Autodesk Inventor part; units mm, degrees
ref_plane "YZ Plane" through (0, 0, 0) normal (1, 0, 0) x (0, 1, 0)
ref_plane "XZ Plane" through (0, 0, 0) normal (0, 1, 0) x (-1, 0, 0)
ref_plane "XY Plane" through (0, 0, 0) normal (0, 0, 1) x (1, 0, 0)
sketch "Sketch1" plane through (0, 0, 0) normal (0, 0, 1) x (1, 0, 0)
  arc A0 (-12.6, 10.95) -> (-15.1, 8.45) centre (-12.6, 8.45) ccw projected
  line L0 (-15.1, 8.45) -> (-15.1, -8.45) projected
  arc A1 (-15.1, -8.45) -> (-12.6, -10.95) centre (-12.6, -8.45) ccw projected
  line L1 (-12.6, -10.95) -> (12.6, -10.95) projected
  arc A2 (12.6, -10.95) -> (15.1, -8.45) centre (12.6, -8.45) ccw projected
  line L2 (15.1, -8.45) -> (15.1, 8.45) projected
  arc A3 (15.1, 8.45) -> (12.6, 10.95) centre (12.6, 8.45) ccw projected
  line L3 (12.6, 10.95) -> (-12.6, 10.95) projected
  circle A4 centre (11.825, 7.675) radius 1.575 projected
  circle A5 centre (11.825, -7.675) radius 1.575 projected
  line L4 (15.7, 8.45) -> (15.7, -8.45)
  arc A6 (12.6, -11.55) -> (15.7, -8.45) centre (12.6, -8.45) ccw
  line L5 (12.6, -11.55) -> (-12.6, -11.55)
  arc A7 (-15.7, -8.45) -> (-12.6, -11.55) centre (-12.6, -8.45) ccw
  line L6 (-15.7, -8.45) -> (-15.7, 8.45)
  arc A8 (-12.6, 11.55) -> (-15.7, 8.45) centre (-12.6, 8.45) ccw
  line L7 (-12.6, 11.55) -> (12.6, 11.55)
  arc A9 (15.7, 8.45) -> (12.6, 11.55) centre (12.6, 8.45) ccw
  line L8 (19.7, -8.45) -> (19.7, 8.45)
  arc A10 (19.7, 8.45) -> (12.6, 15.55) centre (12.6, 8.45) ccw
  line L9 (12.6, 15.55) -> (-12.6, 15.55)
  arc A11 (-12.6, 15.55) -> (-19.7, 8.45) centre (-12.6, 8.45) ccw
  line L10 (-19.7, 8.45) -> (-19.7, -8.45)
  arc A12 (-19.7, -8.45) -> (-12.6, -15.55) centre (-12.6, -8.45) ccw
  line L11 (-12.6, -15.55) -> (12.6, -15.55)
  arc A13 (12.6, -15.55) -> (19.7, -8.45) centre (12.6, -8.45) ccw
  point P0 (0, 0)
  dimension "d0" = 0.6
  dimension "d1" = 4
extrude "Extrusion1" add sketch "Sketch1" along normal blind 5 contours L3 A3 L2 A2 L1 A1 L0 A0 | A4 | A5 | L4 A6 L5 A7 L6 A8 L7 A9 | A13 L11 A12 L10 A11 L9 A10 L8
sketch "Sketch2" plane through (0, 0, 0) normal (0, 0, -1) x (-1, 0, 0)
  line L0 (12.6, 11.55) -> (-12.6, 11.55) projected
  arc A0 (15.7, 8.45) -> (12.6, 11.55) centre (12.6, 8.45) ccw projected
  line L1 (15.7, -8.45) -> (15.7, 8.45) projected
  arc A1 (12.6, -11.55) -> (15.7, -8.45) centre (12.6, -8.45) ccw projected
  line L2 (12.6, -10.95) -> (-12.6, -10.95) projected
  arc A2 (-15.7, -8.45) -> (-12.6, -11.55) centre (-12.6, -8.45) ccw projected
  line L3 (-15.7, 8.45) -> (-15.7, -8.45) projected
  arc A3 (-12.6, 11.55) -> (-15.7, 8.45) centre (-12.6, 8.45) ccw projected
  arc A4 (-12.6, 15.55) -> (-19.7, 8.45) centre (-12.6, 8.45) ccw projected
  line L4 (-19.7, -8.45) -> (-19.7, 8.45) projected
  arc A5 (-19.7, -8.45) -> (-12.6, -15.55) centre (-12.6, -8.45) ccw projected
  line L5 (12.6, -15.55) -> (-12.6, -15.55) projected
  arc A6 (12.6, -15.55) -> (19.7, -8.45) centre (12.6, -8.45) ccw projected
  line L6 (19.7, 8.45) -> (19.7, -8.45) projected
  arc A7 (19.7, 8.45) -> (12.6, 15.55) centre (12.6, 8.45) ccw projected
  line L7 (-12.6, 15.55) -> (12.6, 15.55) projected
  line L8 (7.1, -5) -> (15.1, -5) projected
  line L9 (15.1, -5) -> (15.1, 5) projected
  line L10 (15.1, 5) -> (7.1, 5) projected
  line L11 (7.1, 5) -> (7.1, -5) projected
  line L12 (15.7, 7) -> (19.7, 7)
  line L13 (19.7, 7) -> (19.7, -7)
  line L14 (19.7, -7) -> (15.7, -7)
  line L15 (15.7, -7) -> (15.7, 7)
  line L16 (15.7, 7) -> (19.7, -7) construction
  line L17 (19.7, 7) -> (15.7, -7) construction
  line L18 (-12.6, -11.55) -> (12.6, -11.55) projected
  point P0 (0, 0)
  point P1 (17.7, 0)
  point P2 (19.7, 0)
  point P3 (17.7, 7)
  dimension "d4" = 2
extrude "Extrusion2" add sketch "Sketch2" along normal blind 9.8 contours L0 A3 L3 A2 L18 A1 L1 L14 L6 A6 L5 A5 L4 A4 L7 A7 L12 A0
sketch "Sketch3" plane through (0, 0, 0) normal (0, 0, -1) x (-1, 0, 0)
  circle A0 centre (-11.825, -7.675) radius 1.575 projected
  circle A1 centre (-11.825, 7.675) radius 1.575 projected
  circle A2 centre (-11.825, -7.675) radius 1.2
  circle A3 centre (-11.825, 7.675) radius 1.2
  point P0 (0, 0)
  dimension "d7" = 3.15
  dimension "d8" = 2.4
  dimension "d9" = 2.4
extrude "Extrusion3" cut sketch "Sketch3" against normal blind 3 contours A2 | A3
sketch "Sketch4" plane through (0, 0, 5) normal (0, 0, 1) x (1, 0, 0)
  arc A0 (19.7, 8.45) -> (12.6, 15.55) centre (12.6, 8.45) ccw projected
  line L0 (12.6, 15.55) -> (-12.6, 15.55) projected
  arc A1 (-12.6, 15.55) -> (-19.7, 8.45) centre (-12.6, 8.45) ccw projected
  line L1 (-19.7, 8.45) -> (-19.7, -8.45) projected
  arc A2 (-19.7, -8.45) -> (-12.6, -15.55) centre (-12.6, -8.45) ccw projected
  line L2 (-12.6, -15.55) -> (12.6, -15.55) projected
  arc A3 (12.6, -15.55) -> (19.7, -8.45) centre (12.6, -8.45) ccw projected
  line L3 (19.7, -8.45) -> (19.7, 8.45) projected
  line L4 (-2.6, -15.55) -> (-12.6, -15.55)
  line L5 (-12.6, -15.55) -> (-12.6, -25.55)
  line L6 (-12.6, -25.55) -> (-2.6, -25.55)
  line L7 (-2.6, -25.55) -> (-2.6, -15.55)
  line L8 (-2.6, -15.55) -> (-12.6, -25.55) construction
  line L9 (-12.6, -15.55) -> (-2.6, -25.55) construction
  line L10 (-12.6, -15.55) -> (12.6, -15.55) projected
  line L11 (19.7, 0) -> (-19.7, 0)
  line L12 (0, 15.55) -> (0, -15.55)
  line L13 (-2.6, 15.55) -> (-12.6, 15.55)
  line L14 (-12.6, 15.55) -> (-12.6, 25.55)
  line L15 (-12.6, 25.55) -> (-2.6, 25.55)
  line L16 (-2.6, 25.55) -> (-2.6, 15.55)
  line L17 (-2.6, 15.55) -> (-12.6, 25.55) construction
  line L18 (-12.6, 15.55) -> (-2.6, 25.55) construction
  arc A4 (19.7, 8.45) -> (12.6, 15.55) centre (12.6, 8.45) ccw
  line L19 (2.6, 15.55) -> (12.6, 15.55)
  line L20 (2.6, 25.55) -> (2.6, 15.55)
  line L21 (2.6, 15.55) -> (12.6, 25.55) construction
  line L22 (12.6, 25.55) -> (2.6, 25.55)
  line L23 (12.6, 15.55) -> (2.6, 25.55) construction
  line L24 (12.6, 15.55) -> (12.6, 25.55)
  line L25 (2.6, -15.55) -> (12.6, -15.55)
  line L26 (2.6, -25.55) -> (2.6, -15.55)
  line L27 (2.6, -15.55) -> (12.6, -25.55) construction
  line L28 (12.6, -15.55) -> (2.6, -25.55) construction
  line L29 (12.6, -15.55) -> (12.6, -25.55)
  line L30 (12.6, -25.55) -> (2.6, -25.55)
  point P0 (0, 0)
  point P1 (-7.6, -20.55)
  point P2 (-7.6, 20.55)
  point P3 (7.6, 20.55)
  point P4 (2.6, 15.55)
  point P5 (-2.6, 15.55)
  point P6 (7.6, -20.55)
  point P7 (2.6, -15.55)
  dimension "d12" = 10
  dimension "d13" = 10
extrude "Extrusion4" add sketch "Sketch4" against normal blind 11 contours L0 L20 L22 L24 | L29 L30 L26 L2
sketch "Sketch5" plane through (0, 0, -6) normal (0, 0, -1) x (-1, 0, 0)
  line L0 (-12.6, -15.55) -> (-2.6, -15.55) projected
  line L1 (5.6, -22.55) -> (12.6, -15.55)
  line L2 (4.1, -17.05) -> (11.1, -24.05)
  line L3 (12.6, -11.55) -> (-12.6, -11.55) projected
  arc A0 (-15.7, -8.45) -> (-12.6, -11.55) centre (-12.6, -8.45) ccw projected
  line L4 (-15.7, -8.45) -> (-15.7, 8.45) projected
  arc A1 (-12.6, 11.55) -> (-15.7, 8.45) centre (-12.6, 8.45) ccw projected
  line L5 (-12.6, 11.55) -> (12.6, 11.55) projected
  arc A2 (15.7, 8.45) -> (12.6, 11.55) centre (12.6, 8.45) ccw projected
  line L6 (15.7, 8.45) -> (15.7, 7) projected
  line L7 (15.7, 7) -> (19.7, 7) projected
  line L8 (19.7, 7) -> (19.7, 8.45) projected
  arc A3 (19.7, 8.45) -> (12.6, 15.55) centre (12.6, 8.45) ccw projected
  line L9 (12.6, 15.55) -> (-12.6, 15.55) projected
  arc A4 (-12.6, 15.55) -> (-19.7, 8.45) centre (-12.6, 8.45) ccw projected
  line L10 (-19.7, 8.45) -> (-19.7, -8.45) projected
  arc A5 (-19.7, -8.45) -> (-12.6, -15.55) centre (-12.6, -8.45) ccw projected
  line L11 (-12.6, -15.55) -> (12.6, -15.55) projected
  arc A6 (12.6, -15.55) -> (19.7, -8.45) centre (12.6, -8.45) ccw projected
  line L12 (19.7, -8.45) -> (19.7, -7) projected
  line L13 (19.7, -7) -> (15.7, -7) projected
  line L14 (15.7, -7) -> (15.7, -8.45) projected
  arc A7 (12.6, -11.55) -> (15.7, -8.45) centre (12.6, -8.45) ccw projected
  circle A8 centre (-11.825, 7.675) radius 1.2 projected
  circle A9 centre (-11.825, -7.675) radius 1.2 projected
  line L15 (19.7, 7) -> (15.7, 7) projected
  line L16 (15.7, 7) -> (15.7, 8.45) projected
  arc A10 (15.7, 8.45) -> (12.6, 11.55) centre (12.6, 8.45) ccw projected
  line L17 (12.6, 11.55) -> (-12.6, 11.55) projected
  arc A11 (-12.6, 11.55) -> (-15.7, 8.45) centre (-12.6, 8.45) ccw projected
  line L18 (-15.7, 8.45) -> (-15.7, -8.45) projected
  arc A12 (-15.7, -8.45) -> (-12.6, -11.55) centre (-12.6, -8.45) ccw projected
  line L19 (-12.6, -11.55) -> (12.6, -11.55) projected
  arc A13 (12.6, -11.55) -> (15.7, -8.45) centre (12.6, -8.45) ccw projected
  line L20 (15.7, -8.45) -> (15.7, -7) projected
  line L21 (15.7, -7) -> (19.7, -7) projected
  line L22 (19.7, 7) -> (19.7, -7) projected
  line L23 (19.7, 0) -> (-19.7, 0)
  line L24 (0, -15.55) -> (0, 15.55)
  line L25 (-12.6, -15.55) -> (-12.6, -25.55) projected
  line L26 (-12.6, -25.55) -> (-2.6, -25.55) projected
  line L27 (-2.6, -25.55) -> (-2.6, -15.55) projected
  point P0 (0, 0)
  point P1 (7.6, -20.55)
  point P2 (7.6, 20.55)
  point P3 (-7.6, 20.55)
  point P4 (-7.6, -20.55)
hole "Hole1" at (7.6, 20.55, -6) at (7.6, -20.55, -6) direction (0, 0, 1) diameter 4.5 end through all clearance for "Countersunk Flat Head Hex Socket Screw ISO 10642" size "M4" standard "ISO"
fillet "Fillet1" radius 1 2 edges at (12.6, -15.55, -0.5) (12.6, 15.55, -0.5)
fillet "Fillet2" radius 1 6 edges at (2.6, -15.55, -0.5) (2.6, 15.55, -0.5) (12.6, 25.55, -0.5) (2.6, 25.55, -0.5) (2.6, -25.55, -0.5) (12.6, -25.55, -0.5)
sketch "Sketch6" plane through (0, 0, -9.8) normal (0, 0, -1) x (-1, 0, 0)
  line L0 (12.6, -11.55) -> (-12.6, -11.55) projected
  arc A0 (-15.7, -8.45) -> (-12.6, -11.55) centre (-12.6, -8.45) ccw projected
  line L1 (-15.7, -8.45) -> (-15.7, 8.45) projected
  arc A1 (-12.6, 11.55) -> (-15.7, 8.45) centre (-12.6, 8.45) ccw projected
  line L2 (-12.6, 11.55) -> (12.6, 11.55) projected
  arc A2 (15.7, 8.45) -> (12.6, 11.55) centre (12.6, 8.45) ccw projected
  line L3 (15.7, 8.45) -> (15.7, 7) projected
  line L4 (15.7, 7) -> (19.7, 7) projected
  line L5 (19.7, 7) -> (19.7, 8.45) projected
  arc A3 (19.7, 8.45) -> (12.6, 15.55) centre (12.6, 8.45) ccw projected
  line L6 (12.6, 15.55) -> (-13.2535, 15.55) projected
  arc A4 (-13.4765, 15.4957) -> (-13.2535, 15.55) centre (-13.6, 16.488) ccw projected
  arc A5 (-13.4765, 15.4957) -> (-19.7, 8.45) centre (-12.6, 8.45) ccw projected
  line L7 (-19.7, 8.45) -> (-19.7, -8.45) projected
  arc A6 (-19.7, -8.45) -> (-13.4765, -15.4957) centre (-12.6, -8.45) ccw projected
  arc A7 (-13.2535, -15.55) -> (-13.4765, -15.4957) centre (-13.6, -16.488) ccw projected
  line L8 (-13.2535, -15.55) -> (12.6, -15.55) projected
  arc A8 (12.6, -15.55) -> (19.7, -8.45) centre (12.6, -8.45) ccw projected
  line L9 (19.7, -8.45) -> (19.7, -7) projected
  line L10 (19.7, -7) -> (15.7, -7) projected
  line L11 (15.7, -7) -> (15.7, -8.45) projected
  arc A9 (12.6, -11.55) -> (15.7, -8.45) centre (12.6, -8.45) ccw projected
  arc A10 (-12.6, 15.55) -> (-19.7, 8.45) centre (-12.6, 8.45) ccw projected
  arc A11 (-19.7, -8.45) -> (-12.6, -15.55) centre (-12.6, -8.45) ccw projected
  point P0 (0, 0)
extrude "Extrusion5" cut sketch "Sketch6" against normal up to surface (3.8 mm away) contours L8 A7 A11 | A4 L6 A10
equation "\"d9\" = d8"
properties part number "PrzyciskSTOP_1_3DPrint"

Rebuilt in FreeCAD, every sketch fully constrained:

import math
import FreeCAD as App
import Part
import Sketcher
from FreeCAD import Vector
Q = App.Units.Quantity


def edges_at(feature, points):
    """Names of the edges that pass closest to the given points."""
    edges = feature.Shape.Edges
    near = lambda p: min(range(len(edges)), key=lambda i: edges[i].distToShape(Part.Vertex(*p))[0])
    return sorted({f"Edge{near(p) + 1}" for p in points})

doc = App.newDocument("Part")
body = doc.addObject("PartDesign::Body", "Body")

# Sketch on XY plane
sketch1 = body.newObject("Sketcher::SketchObject", "Sketch")
sketch1.AttachmentSupport = (doc.getObject("XY_Plane"), [""])
sketch1.MapMode = "FlatFace"
sketch1.addGeometry(Part.ArcOfCircle(Part.Circle(Vector(12.6, -8.45, 0), Vector(0, 0, 1), 7.1), math.radians(-90), math.radians(0)), False)
sketch1.addGeometry(Part.LineSegment(Vector(19.7, -8.45, 0), Vector(19.7, 8.45, 0)), False)
sketch1.addGeometry(Part.ArcOfCircle(Part.Circle(Vector(12.6, 8.45, 0), Vector(0, 0, 1), 7.1), math.radians(0), math.radians(90)), False)
sketch1.addGeometry(Part.LineSegment(Vector(12.6, 15.55, 0), Vector(-12.6, 15.55, 0)), False)
sketch1.addGeometry(Part.ArcOfCircle(Part.Circle(Vector(-12.6, 8.45, 0), Vector(0, 0, 1), 7.1), math.radians(90), math.radians(180)), False)
sketch1.addGeometry(Part.LineSegment(Vector(-19.7, 8.45, 0), Vector(-19.7, -8.45, 0)), False)
sketch1.addGeometry(Part.ArcOfCircle(Part.Circle(Vector(-12.6, -8.45, 0), Vector(0, 0, 1), 7.1), math.radians(180), math.radians(270)), False)
sketch1.addGeometry(Part.LineSegment(Vector(-12.6, -15.55, 0), Vector(12.6, -15.55, 0)), False)
sketch1.addConstraint(Sketcher.Constraint("Tangent", 0, 2, 1, 1))
sketch1.addConstraint(Sketcher.Constraint("Tangent", 1, 2, 2, 1))
sketch1.addConstraint(Sketcher.Constraint("Tangent", 2, 2, 3, 1))
sketch1.addConstraint(Sketcher.Constraint("Tangent", 3, 2, 4, 1))
sketch1.addConstraint(Sketcher.Constraint("Tangent", 4, 2, 5, 1))
sketch1.addConstraint(Sketcher.Constraint("Tangent", 5, 2, 6, 1))
sketch1.addConstraint(Sketcher.Constraint("Tangent", 6, 2, 7, 1))
sketch1.addConstraint(Sketcher.Constraint("Tangent", 7, 2, 0, 1))
sketch1.addConstraint(Sketcher.Constraint("Vertical", 1))
sketch1.addConstraint(Sketcher.Constraint("Horizontal", 3))
sketch1.addConstraint(Sketcher.Constraint("Vertical", 5))
sketch1.addConstraint(Sketcher.Constraint("Horizontal", 7))
sketch1.addConstraint(Sketcher.Constraint("Equal", 0, 2))
sketch1.addConstraint(Sketcher.Constraint("Equal", 2, 4))
sketch1.addConstraint(Sketcher.Constraint("Equal", 4, 6))
sketch1.addConstraint(Sketcher.Constraint("Symmetric", 0, 3, 4, 3, -1, 1))
sketch1.addConstraint(Sketcher.Constraint("Radius", 0, Q("7.1 mm")))
sketch1.addConstraint(Sketcher.Constraint("DistanceX", 3, 2, 3, 1, Q("25.2 mm")))
sketch1.addConstraint(Sketcher.Constraint("DistanceY", 1, 1, 1, 2, Q("16.9 mm")))
pad1 = body.newObject("PartDesign::Pad", "Pad")
pad1.Profile = sketch1
pad1.Length = 5

# Sketch on XY plane
sketch2 = body.newObject("Sketcher::SketchObject", "Sketch001")
sketch2.AttachmentSupport = (doc.getObject("XY_Plane"), [""])
sketch2.MapMode = "FlatFace"
sketch2.addGeometry(Part.LineSegment(Vector(12.6, 11.55, 0), Vector(-12.6, 11.55, 0)), False)
sketch2.addGeometry(Part.ArcOfCircle(Part.Circle(Vector(-12.6, 8.45, 0), Vector(0, 0, 1), 3.1), math.radians(90), math.radians(180)), False)
sketch2.addGeometry(Part.LineSegment(Vector(-15.7, 8.45, 0), Vector(-15.7, 7, 0)), False)
sketch2.addGeometry(Part.LineSegment(Vector(-15.7, 7, 0), Vector(-19.7, 7, 0)), False)
sketch2.addGeometry(Part.LineSegment(Vector(-19.7, 7, 0), Vector(-19.7, 8.45, 0)), False)
sketch2.addGeometry(Part.ArcOfCircle(Part.Circle(Vector(-12.6, 8.45, 0), Vector(0, 0, 1), 7.1), math.radians(90), math.radians(180)), False)
sketch2.addGeometry(Part.LineSegment(Vector(-12.6, 15.55, 0), Vector(12.6, 15.55, 0)), False)
sketch2.addGeometry(Part.ArcOfCircle(Part.Circle(Vector(12.6, 8.45, 0), Vector(0, 0, 1), 7.1), math.radians(0), math.radians(90)), False)
sketch2.addGeometry(Part.LineSegment(Vector(19.7, 8.45, 0), Vector(19.7, -8.45, 0)), False)
sketch2.addGeometry(Part.ArcOfCircle(Part.Circle(Vector(12.6, -8.45, 0), Vector(0, 0, 1), 7.1), math.radians(-90), math.radians(0)), False)
sketch2.addGeometry(Part.LineSegment(Vector(12.6, -15.55, 0), Vector(-12.6, -15.55, 0)), False)
sketch2.addGeometry(Part.ArcOfCircle(Part.Circle(Vector(-12.6, -8.45, 0), Vector(0, 0, 1), 7.1), math.radians(180), math.radians(270)), False)
sketch2.addGeometry(Part.LineSegment(Vector(-19.7, -8.45, 0), Vector(-19.7, -7, 0)), False)
sketch2.addGeometry(Part.LineSegment(Vector(-19.7, -7, 0), Vector(-15.7, -7, 0)), False)
sketch2.addGeometry(Part.LineSegment(Vector(-15.7, -7, 0), Vector(-15.7, -8.45, 0)), False)
sketch2.addGeometry(Part.ArcOfCircle(Part.Circle(Vector(-12.6, -8.45, 0), Vector(0, 0, 1), 3.1), math.radians(180), math.radians(270)), False)
sketch2.addGeometry(Part.LineSegment(Vector(-12.6, -11.55, 0), Vector(12.6, -11.55, 0)), False)
sketch2.addGeometry(Part.ArcOfCircle(Part.Circle(Vector(12.6, -8.45, 0), Vector(0, 0, 1), 3.1), math.radians(-90), math.radians(0)), False)
sketch2.addGeometry(Part.LineSegment(Vector(15.7, -8.45, 0), Vector(15.7, 8.45, 0)), False)
sketch2.addGeometry(Part.ArcOfCircle(Part.Circle(Vector(12.6, 8.45, 0), Vector(0, 0, 1), 3.1), math.radians(0), math.radians(90)), False)
sketch2.addConstraint(Sketcher.Constraint("Tangent", 0, 2, 1, 1))
sketch2.addConstraint(Sketcher.Constraint("Tangent", 1, 2, 2, 1))
sketch2.addConstraint(Sketcher.Constraint("Coincident", 2, 2, 3, 1))
sketch2.addConstraint(Sketcher.Constraint("Coincident", 3, 2, 4, 1))
sketch2.addConstraint(Sketcher.Constraint("Tangent", 4, 2, 5, 2))
sketch2.addConstraint(Sketcher.Constraint("Tangent", 5, 1, 6, 1))
sketch2.addConstraint(Sketcher.Constraint("Tangent", 6, 2, 7, 2))
sketch2.addConstraint(Sketcher.Constraint("Tangent", 7, 1, 8, 1))
sketch2.addConstraint(Sketcher.Constraint("Tangent", 8, 2, 9, 2))
sketch2.addConstraint(Sketcher.Constraint("Tangent", 9, 1, 10, 1))
sketch2.addConstraint(Sketcher.Constraint("Tangent", 10, 2, 11, 2))
sketch2.addConstraint(Sketcher.Constraint("Tangent", 11, 1, 12, 1))
sketch2.addConstraint(Sketcher.Constraint("Coincident", 12, 2, 13, 1))
sketch2.addConstraint(Sketcher.Constraint("Coincident", 13, 2, 14, 1))
sketch2.addConstraint(Sketcher.Constraint("Tangent", 14, 2, 15, 1))
sketch2.addConstraint(Sketcher.Constraint("Tangent", 15, 2, 16, 1))
sketch2.addConstraint(Sketcher.Constraint("Tangent", 16, 2, 17, 1))
sketch2.addConstraint(Sketcher.Constraint("Tangent", 17, 2, 18, 1))
sketch2.addConstraint(Sketcher.Constraint("Tangent", 18, 2, 19, 1))
sketch2.addConstraint(Sketcher.Constraint("Tangent", 19, 2, 0, 1))
sketch2.addConstraint(Sketcher.Constraint("Horizontal", 0))
sketch2.addConstraint(Sketcher.Constraint("Vertical", 2))
sketch2.addConstraint(Sketcher.Constraint("Horizontal", 3))
sketch2.addConstraint(Sketcher.Constraint("Vertical", 4))
sketch2.addConstraint(Sketcher.Constraint("Horizontal", 6))
sketch2.addConstraint(Sketcher.Constraint("Vertical", 8))
sketch2.addConstraint(Sketcher.Constraint("Horizontal", 10))
sketch2.addConstraint(Sketcher.Constraint("Vertical", 12))
sketch2.addConstraint(Sketcher.Constraint("Horizontal", 13))
sketch2.addConstraint(Sketcher.Constraint("Vertical", 14))
sketch2.addConstraint(Sketcher.Constraint("Horizontal", 16))
sketch2.addConstraint(Sketcher.Constraint("Vertical", 18))
sketch2.addConstraint(Sketcher.Constraint("Coincident", 5, 3, 1, 3))
sketch2.addConstraint(Sketcher.Constraint("Coincident", 15, 3, 11, 3))
sketch2.addConstraint(Sketcher.Constraint("Coincident", 17, 3, 9, 3))
sketch2.addConstraint(Sketcher.Constraint("Coincident", 19, 3, 7, 3))
sketch2.addConstraint(Sketcher.Constraint("Equal", 5, 7))
sketch2.addConstraint(Sketcher.Constraint("Equal", 7, 9))
sketch2.addConstraint(Sketcher.Constraint("Equal", 9, 11))
sketch2.addConstraint(Sketcher.Constraint("Symmetric", 1, 3, 9, 3, -1, 1))
sketch2.addConstraint(Sketcher.Constraint("Symmetric", 3, 2, 12, 2, -1))
sketch2.addConstraint(Sketcher.Constraint("Radius", 1, Q("3.1 mm")))
sketch2.addConstraint(Sketcher.Constraint("Radius", 5, Q("7.1 mm")))
sketch2.addConstraint(Sketcher.Constraint("DistanceX", 0, 2, 0, 1, Q("25.2 mm")))
sketch2.addConstraint(Sketcher.Constraint("DistanceY", 8, 2, 8, 1, Q("16.9 mm")))
sketch2.addConstraint(Sketcher.Constraint("DistanceY", -1, 1, 2, 2, Q("7 mm")))
pad2 = body.newObject("PartDesign::Pad", "Pad001")
pad2.Profile = sketch2
pad2.Length = 9.8
pad2.Reversed = True

# Sketch on XY plane
sketch3 = body.newObject("Sketcher::SketchObject", "Sketch002")
sketch3.AttachmentSupport = (doc.getObject("XY_Plane"), [""])
sketch3.MapMode = "FlatFace"
sketch3.addGeometry(Part.Circle(Vector(11.825, -7.675, 0), Vector(0, 0, 1), 1.2), False)
sketch3.addGeometry(Part.Circle(Vector(11.825, 7.675, 0), Vector(0, 0, 1), 1.2), False)
sketch3.addConstraint(Sketcher.Constraint("Equal", 0, 1))
sketch3.addConstraint(Sketcher.Constraint("Symmetric", 0, 3, 1, 3, -1))
sketch3.addConstraint(Sketcher.Constraint("Diameter", 0, Q("2.4 mm")))
sketch3.addConstraint(Sketcher.Constraint("DistanceY", 0, 3, 1, 3, Q("15.35 mm")))
sketch3.addConstraint(Sketcher.Constraint("DistanceX", -1, 1, 0, 3, Q("11.825 mm")))
pocket1 = body.newObject("PartDesign::Pocket", "Pocket")
pocket1.Profile = sketch3
pocket1.Length = 3
pocket1.Reversed = True

# Sketch on XY plane
sketch4 = body.newObject("Sketcher::SketchObject", "Sketch003")
sketch4.AttachmentSupport = (doc.getObject("XY_Plane"), [""])
sketch4.MapMode = "FlatFace"
sketch4.AttachmentOffset = App.Placement(Vector(0, 0, 5), App.Rotation())
sketch4.addGeometry(Part.LineSegment(Vector(2.6, 15.55, 0), Vector(12.6, 15.55, 0)), False)
sketch4.addGeometry(Part.LineSegment(Vector(12.6, 15.55, 0), Vector(12.6, 25.55, 0)), False)
sketch4.addGeometry(Part.LineSegment(Vector(12.6, 25.55, 0), Vector(2.6, 25.55, 0)), False)
sketch4.addGeometry(Part.LineSegment(Vector(2.6, 25.55, 0), Vector(2.6, 15.55, 0)), False)
sketch4.addGeometry(Part.LineSegment(Vector(12.6, -25.55, 0), Vector(12.6, -15.55, 0)), False)
sketch4.addGeometry(Part.LineSegment(Vector(12.6, -15.55, 0), Vector(2.6, -15.55, 0)), False)
sketch4.addGeometry(Part.LineSegment(Vector(2.6, -15.55, 0), Vector(2.6, -25.55, 0)), False)
sketch4.addGeometry(Part.LineSegment(Vector(2.6, -25.55, 0), Vector(12.6, -25.55, 0)), False)
sketch4.addConstraint(Sketcher.Constraint("Coincident", 0, 2, 1, 1))
sketch4.addConstraint(Sketcher.Constraint("Coincident", 1, 2, 2, 1))
sketch4.addConstraint(Sketcher.Constraint("Coincident", 2, 2, 3, 1))
sketch4.addConstraint(Sketcher.Constraint("Coincident", 3, 2, 0, 1))
sketch4.addConstraint(Sketcher.Constraint("Coincident", 4, 2, 5, 1))
sketch4.addConstraint(Sketcher.Constraint("Coincident", 5, 2, 6, 1))
sketch4.addConstraint(Sketcher.Constraint("Coincident", 6, 2, 7, 1))
sketch4.addConstraint(Sketcher.Constraint("Coincident", 7, 2, 4, 1))
sketch4.addConstraint(Sketcher.Constraint("Horizontal", 0))
sketch4.addConstraint(Sketcher.Constraint("Vertical", 1))
sketch4.addConstraint(Sketcher.Constraint("Horizontal", 2))
sketch4.addConstraint(Sketcher.Constraint("Vertical", 3))
sketch4.addConstraint(Sketcher.Constraint("Vertical", 4))
sketch4.addConstraint(Sketcher.Constraint("Horizontal", 5))
sketch4.addConstraint(Sketcher.Constraint("Vertical", 6))
sketch4.addConstraint(Sketcher.Constraint("Horizontal", 7))
sketch4.addConstraint(Sketcher.Constraint("Symmetric", 0, 2, 4, 2, -1))
sketch4.addConstraint(Sketcher.Constraint("Symmetric", 2, 2, 6, 2, -1))
sketch4.addConstraint(Sketcher.Constraint("Equal", 7, 1))
sketch4.addConstraint(Sketcher.Constraint("DistanceX", 0, 1, 0, 2, Q("10 mm")))
sketch4.addConstraint(Sketcher.Constraint("DistanceX", -1, 1, 0, 2, Q("12.6 mm")))
sketch4.addConstraint(Sketcher.Constraint("DistanceY", 4, 2, 0, 2, Q("31.1 mm")))
pad3 = body.newObject("PartDesign::Pad", "Pad002")
pad3.Profile = sketch4
pad3.Length = 11
pad3.Reversed = True

# Sketch on XY plane
sketch5 = body.newObject("Sketcher::SketchObject", "Sketch004")
sketch5.AttachmentSupport = (doc.getObject("XY_Plane"), [""])
sketch5.MapMode = "FlatFace"
sketch5.AttachmentOffset = App.Placement(Vector(0, 0, -6), App.Rotation())
sketch5.addGeometry(Part.Circle(Vector(7.6, 20.55, 0), Vector(0, 0, 1), 2.25), False)
sketch5.addGeometry(Part.Circle(Vector(7.6, -20.55, 0), Vector(0, 0, 1), 2.25), False)
sketch5.addConstraint(Sketcher.Constraint("Equal", 0, 1))
sketch5.addConstraint(Sketcher.Constraint("Symmetric", 0, 3, 1, 3, -1))
sketch5.addConstraint(Sketcher.Constraint("Diameter", 0, Q("4.5 mm")))
sketch5.addConstraint(Sketcher.Constraint("DistanceX", -1, 1, 0, 3, Q("7.6 mm")))
sketch5.addConstraint(Sketcher.Constraint("DistanceY", 1, 3, 0, 3, Q("41.1 mm")))
doc.recompute()
hole = body.newObject("PartDesign::Hole", "Hole")
hole.Profile = sketch5
hole.ThreadType = "None"
hole.Diameter = 4.5
hole.DepthType = "ThroughAll"
hole.Reversed = True
doc.recompute()

fillet = body.newObject("PartDesign::Fillet", "Fillet")
fillet.Base = (hole, edges_at(hole, [(12.6, -15.55, -0.5), (12.6, 15.55, -0.5)]))
fillet.Radius = 1
doc.recompute()

fillet2 = body.newObject("PartDesign::Fillet", "Fillet001")
fillet2.Base = (fillet, edges_at(fillet, [
    (2.6, -15.55, -0.5),
    (2.6, 15.55, -0.5),
    (12.6, 25.55, -0.5),
    (2.6, 25.55, -0.5),
    (2.6, -25.55, -0.5),
    (12.6, -25.55, -0.5),
]))
fillet2.Radius = 1

# Sketch on XY plane
sketch6 = body.newObject("Sketcher::SketchObject", "Sketch005")
sketch6.AttachmentSupport = (doc.getObject("XY_Plane"), [""])
sketch6.MapMode = "FlatFace"
sketch6.AttachmentOffset = App.Placement(Vector(0, 0, -9.8), App.Rotation())
sketch6.addGeometry(Part.LineSegment(Vector(13.2535, -15.55, 0), Vector(12.6, -15.55, 0)), False)
sketch6.addGeometry(Part.ArcOfCircle(Part.Circle(Vector(12.6, -8.45, 0), Vector(0, 0, 1), 7.1), math.radians(-90), math.radians(-82.908715)), False)
sketch6.addGeometry(Part.ArcOfCircle(Part.Circle(Vector(13.6, -16.488, 0), Vector(0, 0, 1), 0.999953), math.radians(97.094456), math.radians(110.27438)), False)
sketch6.addGeometry(Part.ArcOfCircle(Part.Circle(Vector(13.6, 16.488, 0), Vector(0, 0, 1), 0.999956), math.radians(-110.27438), math.radians(-97.094456)), False)
sketch6.addGeometry(Part.ArcOfCircle(Part.Circle(Vector(12.6, 8.45, 0), Vector(0, 0, 1), 7.1), math.radians(82.908715), math.radians(90)), False)
sketch6.addGeometry(Part.LineSegment(Vector(12.6, 15.55, 0), Vector(13.2535, 15.55, 0)), False)
sketch6.addConstraint(Sketcher.Constraint("Tangent", 0, 2, 1, 1))
sketch6.addConstraint(Sketcher.Constraint("Tangent", 1, 2, 2, 1))
sketch6.addConstraint(Sketcher.Constraint("Coincident", 2, 2, 0, 1))
sketch6.addConstraint(Sketcher.Constraint("Tangent", 3, 2, 4, 1))
sketch6.addConstraint(Sketcher.Constraint("Tangent", 4, 2, 5, 1))
sketch6.addConstraint(Sketcher.Constraint("Coincident", 5, 2, 3, 1))
sketch6.addConstraint(Sketcher.Constraint("Horizontal", 0))
sketch6.addConstraint(Sketcher.Constraint("Horizontal", 5))
sketch6.addConstraint(Sketcher.Constraint("Equal", 2, 3))
sketch6.addConstraint(Sketcher.Constraint("Equal", 1, 4))
sketch6.addConstraint(Sketcher.Constraint("Symmetric", 2, 3, 3, 3, -1))
sketch6.addConstraint(Sketcher.Constraint("Vertical", 1, 3, 4, 3))
sketch6.addConstraint(Sketcher.Constraint("Radius", 2, Q("1 mm")))
sketch6.addConstraint(Sketcher.Constraint("Radius", 1, Q("7.1 mm")))
sketch6.addConstraint(Sketcher.Constraint("DistanceX", 1, 3, 2, 3, Q("1 mm")))
sketch6.addConstraint(Sketcher.Constraint("DistanceY", 0, 2, 4, 3, Q("24 mm")))
sketch6.addConstraint(Sketcher.Constraint("DistanceX", -1, 1, 1, 3, Q("12.6 mm")))
pocket2 = body.newObject("PartDesign::Pocket", "Pocket001")
pocket2.Profile = sketch6
pocket2.Length = 3.8
pocket2.Reversed = True

doc.recompute()
